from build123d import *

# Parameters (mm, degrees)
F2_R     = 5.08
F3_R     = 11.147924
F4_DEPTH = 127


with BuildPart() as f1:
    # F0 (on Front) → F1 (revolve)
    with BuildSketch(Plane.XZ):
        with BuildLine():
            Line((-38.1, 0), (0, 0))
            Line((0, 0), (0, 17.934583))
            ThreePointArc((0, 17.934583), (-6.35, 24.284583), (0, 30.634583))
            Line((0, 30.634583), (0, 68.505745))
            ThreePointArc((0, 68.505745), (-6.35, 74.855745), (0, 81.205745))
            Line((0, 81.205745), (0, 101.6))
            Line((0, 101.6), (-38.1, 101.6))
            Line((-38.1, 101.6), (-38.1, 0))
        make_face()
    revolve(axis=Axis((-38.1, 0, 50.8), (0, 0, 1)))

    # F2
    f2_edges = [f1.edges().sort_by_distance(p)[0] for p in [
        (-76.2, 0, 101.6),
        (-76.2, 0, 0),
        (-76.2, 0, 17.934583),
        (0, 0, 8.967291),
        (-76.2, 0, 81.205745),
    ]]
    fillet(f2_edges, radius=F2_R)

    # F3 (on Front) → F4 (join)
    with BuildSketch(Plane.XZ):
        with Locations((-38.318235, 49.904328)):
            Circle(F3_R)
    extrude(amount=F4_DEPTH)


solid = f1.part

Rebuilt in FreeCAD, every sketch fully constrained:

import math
import FreeCAD as App
import Part
import Sketcher

V = App.Vector
Q = App.Units.Quantity


def edges_at(feature, points):
    """Names of the edges that pass closest to the given points."""
    edges = feature.Shape.Edges
    near = lambda p: min(range(len(edges)), key=lambda i: edges[i].distToShape(Part.Vertex(*p))[0])
    return sorted({f"Edge{near(p) + 1}" for p in points})

doc = App.newDocument("Part")
params = doc.addObject("Spreadsheet::Sheet", "Params")
for row, (alias, value) in enumerate([
    ("sketch1_height", "4 in"),
    ("sketch1_radius", "0.25 in"),
    ("sketch1_width", "1.5 in"),
    ("revolution_angle", "360 deg"),
    ("fillet_radius", "0.2 in"),
    ("pad1_length", "5 in"),
], start=1):
    params.set(f"A{row}", alias)
    params.set(f"B{row}", "=" + value)
    params.setAlias(f"B{row}", alias)

body = doc.addObject("PartDesign::Body", "Body")

# Sketch on XZ plane
sketch1 = body.newObject("Sketcher::SketchObject", "Sketch")
sketch1.AttachmentSupport = (doc.getObject("XZ_Plane"), [""])
sketch1.MapMode = "FlatFace"
sketch1.addGeometry([
    Part.LineSegment(V(-38, 0, 0), V(0, 0, 0)),  # 0
    Part.LineSegment(V(0, 0, 0), V(0, 18, 0)),  # 1
    Part.ArcOfCircle(Part.Circle(V(0, 24, 0), V(0, 0, 1), 6), math.radians(90), math.radians(270)),  # 2
    Part.LineSegment(V(0, 31, 0), V(0, 69, 0)),  # 3
    Part.ArcOfCircle(Part.Circle(V(0, 75, 0), V(0, 0, 1), 6), math.radians(90), math.radians(270)),  # 4
    Part.LineSegment(V(0, 81, 0), V(0, 102, 0)),  # 5
    Part.LineSegment(V(0, 102, 0), V(-38, 102, 0)),  # 6
    Part.LineSegment(V(-38, 102, 0), V(-38, 0, 0)),  # 7
], False)
sketch1.addGeometry(Part.LineSegment(V(-38, 0, 0), V(-38, 102, 0)), True)  # axis
sketch1.addConstraint([
    Sketcher.Constraint("Coincident", 0, 2, 1, 1),
    Sketcher.Constraint("Coincident", 1, 2, 2, 2),
    Sketcher.Constraint("Coincident", 2, 1, 3, 1),
    Sketcher.Constraint("Coincident", 3, 2, 4, 2),
    Sketcher.Constraint("Coincident", 4, 1, 5, 1),
    Sketcher.Constraint("Coincident", 5, 2, 6, 1),
    Sketcher.Constraint("Coincident", 6, 2, 7, 1),
    Sketcher.Constraint("Coincident", 7, 2, 0, 1),
    Sketcher.Constraint("Horizontal", 0),
    Sketcher.Constraint("Vertical", 1),
    Sketcher.Constraint("Vertical", 3),
    Sketcher.Constraint("Vertical", 5),
    Sketcher.Constraint("Horizontal", 6),
    Sketcher.Constraint("Vertical", 7),
    Sketcher.Constraint("Vertical", 8),
    Sketcher.Constraint("Coincident", 0, 2, -1, 1),
    Sketcher.Constraint("Coincident", 8, 1, 7, 2),
    Sketcher.Constraint("Equal", 2, 4),
    Sketcher.Constraint("PointOnObject", 2, 3, -2),
    Sketcher.Constraint("PointOnObject", 4, 3, -2),
    Sketcher.Constraint("PointOnObject", 2, 1, -2),
    Sketcher.Constraint("PointOnObject", 4, 1, -2),
    Sketcher.Constraint("Horizontal", 5, 2, 8, 2),
    Sketcher.Constraint("DistanceY", 7, 2, 7, 1, Q("4 in")),
    Sketcher.Constraint("Radius", 2, Q("0.25 in")),
    Sketcher.Constraint("DistanceX", 0, 1, 0, 2, Q("1.5 in")),
    Sketcher.Constraint("DistanceY", 1, 1, 1, 2, 17.934583),
    Sketcher.Constraint("DistanceY", 3, 1, 3, 2, 37.871162),
])
sketch1.setExpression("Constraints[23]", "Params.sketch1_height")
sketch1.setExpression("Constraints[24]", "Params.sketch1_radius")
sketch1.setExpression("Constraints[25]", "Params.sketch1_width")
revolution = body.newObject("PartDesign::Revolution", "Revolution")
revolution.Profile = sketch1
revolution.ReferenceAxis = (sketch1, ["Axis0"])
revolution.setExpression("Angle", "Params.revolution_angle")
doc.recompute()

fillet = body.newObject("PartDesign::Fillet", "Fillet")
fillet.Base = (revolution, edges_at(revolution, [
    (-76.2, 0, 101.6),
    (-76.2, 0, 0),
    (-76.2, 0, 17.935),
    (0, 0, 8.967),
    (-76.2, 0, 81.206),
]))
fillet.setExpression("Radius", "Params.fillet_radius")

# Sketch on XZ plane
sketch2 = body.newObject("Sketcher::SketchObject", "Sketch001")
sketch2.AttachmentSupport = (doc.getObject("XZ_Plane"), [""])
sketch2.MapMode = "FlatFace"
sketch2.addGeometry(Part.Circle(V(-38, 50, 0), V(0, 0, 1), 11), False)
sketch2.addConstraint([
    Sketcher.Constraint("Diameter", 0, 22.295848),
    Sketcher.Constraint("DistanceX", 0, 3, -1, 1, 38.318235),
    Sketcher.Constraint("DistanceY", -1, 1, 0, 3, 49.904328),
])
pad1 = body.newObject("PartDesign::Pad", "Pad")
pad1.Profile = sketch2
pad1.setExpression("Length", "Params.pad1_length")

doc.recompute()
